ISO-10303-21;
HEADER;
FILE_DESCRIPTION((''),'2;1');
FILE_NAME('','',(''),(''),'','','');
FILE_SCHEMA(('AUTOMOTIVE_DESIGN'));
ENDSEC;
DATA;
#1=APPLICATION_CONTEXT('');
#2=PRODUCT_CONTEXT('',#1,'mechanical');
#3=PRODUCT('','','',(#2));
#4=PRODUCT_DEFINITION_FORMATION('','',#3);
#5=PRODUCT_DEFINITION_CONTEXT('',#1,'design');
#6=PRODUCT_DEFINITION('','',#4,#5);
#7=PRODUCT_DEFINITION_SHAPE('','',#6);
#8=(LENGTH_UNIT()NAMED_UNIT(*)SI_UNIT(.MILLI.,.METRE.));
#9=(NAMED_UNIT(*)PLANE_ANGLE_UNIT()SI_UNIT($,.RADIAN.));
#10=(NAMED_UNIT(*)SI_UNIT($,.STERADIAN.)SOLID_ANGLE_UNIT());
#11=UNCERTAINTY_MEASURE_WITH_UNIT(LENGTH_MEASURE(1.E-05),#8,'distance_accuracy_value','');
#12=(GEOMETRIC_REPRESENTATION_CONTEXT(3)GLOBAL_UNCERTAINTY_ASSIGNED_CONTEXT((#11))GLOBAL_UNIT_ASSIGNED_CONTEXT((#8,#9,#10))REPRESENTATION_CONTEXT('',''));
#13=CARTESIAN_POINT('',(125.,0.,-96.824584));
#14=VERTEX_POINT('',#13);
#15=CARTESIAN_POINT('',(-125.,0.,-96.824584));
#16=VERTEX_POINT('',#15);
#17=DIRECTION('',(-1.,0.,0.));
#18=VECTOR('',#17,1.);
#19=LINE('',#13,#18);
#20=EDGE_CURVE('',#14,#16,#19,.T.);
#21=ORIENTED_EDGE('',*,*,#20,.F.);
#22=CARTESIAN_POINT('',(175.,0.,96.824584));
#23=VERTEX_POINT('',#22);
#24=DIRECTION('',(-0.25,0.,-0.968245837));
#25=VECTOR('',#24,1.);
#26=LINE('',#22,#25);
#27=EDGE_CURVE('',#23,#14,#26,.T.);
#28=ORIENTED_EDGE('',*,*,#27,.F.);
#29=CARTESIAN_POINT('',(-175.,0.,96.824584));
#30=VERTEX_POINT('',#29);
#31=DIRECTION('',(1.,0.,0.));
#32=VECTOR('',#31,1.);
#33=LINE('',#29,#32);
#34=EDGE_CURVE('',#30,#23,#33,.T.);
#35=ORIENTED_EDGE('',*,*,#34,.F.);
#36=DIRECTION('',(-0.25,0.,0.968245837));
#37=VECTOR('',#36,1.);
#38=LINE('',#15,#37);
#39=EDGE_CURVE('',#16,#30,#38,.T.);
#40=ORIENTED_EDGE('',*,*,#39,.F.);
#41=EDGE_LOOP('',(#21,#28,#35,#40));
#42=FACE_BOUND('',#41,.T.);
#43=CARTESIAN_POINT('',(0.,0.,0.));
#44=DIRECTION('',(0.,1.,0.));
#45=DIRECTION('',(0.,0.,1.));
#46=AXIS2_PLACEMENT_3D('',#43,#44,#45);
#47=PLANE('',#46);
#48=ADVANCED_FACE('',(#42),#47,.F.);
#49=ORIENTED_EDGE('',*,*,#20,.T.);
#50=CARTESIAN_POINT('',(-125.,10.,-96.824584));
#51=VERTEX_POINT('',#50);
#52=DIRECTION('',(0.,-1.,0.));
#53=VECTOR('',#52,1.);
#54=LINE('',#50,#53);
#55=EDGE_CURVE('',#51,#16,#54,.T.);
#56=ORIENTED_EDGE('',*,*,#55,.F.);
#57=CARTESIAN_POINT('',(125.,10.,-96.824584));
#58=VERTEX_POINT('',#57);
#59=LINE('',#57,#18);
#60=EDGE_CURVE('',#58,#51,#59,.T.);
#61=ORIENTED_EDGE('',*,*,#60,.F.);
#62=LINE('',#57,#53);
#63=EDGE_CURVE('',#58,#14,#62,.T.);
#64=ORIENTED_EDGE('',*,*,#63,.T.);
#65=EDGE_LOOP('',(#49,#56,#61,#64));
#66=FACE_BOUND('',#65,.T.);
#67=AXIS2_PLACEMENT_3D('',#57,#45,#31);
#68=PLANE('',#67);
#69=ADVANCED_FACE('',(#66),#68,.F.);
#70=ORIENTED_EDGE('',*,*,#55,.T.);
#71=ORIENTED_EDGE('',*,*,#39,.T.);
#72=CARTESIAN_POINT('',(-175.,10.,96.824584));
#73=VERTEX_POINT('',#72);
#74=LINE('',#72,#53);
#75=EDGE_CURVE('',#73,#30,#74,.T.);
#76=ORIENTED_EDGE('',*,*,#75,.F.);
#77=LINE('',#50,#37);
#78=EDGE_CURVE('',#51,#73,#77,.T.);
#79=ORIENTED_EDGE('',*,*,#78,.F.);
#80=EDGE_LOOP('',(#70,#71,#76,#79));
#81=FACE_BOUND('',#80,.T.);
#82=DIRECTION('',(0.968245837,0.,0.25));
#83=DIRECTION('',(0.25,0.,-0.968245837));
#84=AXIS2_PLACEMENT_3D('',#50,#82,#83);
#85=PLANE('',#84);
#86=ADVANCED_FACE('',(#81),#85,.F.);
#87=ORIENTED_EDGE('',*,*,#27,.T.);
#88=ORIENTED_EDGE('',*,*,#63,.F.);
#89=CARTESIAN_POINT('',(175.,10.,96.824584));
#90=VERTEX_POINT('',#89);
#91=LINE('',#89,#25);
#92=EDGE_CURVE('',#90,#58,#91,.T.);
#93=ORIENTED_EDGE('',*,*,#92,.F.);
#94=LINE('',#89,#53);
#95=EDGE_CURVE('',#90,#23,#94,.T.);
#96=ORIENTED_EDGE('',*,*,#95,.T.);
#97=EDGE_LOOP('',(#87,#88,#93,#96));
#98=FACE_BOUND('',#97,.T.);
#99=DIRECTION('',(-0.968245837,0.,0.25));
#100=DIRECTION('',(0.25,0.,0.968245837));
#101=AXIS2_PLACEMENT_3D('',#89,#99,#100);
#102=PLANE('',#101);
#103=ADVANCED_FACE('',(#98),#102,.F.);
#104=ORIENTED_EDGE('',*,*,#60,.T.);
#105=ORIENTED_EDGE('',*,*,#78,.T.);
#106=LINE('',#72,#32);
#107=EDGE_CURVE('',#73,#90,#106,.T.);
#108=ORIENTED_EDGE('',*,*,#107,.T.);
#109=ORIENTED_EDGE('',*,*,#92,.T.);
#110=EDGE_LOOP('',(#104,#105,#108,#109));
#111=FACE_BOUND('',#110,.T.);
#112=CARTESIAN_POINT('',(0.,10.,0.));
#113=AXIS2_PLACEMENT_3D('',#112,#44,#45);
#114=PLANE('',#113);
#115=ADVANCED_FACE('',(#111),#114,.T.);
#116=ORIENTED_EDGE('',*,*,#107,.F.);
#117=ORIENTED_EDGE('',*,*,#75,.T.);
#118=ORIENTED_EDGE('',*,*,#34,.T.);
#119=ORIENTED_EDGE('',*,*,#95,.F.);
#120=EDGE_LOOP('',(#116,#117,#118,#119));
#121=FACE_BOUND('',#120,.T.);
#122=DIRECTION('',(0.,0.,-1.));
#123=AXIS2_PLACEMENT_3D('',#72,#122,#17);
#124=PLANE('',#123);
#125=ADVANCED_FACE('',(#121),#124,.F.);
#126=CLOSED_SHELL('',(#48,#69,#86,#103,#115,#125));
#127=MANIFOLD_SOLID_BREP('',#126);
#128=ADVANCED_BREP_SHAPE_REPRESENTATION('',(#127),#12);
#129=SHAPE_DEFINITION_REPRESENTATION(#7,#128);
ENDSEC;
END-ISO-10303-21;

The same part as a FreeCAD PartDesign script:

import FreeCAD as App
import Part
import Sketcher

V = App.Vector


def add_polygon(sketch, points):
    """Adds a closed chain of lines whose ends are joined by coincident constraints."""
    first, n = sketch.GeometryCount, len(points)
    for a, b in zip(points, points[1:] + points[:1]):
        sketch.addGeometry(Part.LineSegment(App.Vector(*a, 0), App.Vector(*b, 0)), False)
    for i in range(n):
        sketch.addConstraint(Sketcher.Constraint("Coincident", first + i, 2, first + (i + 1) % n, 1))

doc = App.newDocument("Part")
body = doc.addObject("PartDesign::Body", "Body")

sketch1 = body.newObject("Sketcher::SketchObject", "Sketch")
sketch1.AttachmentSupport = (doc.getObject("XZ_Plane"), [""])
sketch1.MapMode = "FlatFace"
add_polygon(sketch1, [(-125, -96.824584), (-175, 96.824584), (175, 96.824584), (125, -96.824584)])
sketch1.addConstraint([
    Sketcher.Constraint("Horizontal", 1),
    Sketcher.Constraint("Horizontal", 3),
    Sketcher.Constraint("Equal", 0, 2),
    Sketcher.Constraint("DistanceX", 1, 1, 1, 2, 350.0),
    Sketcher.Constraint("DistanceX", 3, 2, 3, 1, 250.0),
    Sketcher.Constraint("Distance", 0, 200.0),
    Sketcher.Constraint("DistanceX", 0, 2, -1, 1, 175.0),
    Sketcher.Constraint("DistanceY", -1, 1, 0, 2, 96.824584),
])
pad1 = body.newObject("PartDesign::Pad", "Pad")
pad1.Profile = sketch1
pad1.Length = 10
pad1.Reversed = True

doc.recompute()
